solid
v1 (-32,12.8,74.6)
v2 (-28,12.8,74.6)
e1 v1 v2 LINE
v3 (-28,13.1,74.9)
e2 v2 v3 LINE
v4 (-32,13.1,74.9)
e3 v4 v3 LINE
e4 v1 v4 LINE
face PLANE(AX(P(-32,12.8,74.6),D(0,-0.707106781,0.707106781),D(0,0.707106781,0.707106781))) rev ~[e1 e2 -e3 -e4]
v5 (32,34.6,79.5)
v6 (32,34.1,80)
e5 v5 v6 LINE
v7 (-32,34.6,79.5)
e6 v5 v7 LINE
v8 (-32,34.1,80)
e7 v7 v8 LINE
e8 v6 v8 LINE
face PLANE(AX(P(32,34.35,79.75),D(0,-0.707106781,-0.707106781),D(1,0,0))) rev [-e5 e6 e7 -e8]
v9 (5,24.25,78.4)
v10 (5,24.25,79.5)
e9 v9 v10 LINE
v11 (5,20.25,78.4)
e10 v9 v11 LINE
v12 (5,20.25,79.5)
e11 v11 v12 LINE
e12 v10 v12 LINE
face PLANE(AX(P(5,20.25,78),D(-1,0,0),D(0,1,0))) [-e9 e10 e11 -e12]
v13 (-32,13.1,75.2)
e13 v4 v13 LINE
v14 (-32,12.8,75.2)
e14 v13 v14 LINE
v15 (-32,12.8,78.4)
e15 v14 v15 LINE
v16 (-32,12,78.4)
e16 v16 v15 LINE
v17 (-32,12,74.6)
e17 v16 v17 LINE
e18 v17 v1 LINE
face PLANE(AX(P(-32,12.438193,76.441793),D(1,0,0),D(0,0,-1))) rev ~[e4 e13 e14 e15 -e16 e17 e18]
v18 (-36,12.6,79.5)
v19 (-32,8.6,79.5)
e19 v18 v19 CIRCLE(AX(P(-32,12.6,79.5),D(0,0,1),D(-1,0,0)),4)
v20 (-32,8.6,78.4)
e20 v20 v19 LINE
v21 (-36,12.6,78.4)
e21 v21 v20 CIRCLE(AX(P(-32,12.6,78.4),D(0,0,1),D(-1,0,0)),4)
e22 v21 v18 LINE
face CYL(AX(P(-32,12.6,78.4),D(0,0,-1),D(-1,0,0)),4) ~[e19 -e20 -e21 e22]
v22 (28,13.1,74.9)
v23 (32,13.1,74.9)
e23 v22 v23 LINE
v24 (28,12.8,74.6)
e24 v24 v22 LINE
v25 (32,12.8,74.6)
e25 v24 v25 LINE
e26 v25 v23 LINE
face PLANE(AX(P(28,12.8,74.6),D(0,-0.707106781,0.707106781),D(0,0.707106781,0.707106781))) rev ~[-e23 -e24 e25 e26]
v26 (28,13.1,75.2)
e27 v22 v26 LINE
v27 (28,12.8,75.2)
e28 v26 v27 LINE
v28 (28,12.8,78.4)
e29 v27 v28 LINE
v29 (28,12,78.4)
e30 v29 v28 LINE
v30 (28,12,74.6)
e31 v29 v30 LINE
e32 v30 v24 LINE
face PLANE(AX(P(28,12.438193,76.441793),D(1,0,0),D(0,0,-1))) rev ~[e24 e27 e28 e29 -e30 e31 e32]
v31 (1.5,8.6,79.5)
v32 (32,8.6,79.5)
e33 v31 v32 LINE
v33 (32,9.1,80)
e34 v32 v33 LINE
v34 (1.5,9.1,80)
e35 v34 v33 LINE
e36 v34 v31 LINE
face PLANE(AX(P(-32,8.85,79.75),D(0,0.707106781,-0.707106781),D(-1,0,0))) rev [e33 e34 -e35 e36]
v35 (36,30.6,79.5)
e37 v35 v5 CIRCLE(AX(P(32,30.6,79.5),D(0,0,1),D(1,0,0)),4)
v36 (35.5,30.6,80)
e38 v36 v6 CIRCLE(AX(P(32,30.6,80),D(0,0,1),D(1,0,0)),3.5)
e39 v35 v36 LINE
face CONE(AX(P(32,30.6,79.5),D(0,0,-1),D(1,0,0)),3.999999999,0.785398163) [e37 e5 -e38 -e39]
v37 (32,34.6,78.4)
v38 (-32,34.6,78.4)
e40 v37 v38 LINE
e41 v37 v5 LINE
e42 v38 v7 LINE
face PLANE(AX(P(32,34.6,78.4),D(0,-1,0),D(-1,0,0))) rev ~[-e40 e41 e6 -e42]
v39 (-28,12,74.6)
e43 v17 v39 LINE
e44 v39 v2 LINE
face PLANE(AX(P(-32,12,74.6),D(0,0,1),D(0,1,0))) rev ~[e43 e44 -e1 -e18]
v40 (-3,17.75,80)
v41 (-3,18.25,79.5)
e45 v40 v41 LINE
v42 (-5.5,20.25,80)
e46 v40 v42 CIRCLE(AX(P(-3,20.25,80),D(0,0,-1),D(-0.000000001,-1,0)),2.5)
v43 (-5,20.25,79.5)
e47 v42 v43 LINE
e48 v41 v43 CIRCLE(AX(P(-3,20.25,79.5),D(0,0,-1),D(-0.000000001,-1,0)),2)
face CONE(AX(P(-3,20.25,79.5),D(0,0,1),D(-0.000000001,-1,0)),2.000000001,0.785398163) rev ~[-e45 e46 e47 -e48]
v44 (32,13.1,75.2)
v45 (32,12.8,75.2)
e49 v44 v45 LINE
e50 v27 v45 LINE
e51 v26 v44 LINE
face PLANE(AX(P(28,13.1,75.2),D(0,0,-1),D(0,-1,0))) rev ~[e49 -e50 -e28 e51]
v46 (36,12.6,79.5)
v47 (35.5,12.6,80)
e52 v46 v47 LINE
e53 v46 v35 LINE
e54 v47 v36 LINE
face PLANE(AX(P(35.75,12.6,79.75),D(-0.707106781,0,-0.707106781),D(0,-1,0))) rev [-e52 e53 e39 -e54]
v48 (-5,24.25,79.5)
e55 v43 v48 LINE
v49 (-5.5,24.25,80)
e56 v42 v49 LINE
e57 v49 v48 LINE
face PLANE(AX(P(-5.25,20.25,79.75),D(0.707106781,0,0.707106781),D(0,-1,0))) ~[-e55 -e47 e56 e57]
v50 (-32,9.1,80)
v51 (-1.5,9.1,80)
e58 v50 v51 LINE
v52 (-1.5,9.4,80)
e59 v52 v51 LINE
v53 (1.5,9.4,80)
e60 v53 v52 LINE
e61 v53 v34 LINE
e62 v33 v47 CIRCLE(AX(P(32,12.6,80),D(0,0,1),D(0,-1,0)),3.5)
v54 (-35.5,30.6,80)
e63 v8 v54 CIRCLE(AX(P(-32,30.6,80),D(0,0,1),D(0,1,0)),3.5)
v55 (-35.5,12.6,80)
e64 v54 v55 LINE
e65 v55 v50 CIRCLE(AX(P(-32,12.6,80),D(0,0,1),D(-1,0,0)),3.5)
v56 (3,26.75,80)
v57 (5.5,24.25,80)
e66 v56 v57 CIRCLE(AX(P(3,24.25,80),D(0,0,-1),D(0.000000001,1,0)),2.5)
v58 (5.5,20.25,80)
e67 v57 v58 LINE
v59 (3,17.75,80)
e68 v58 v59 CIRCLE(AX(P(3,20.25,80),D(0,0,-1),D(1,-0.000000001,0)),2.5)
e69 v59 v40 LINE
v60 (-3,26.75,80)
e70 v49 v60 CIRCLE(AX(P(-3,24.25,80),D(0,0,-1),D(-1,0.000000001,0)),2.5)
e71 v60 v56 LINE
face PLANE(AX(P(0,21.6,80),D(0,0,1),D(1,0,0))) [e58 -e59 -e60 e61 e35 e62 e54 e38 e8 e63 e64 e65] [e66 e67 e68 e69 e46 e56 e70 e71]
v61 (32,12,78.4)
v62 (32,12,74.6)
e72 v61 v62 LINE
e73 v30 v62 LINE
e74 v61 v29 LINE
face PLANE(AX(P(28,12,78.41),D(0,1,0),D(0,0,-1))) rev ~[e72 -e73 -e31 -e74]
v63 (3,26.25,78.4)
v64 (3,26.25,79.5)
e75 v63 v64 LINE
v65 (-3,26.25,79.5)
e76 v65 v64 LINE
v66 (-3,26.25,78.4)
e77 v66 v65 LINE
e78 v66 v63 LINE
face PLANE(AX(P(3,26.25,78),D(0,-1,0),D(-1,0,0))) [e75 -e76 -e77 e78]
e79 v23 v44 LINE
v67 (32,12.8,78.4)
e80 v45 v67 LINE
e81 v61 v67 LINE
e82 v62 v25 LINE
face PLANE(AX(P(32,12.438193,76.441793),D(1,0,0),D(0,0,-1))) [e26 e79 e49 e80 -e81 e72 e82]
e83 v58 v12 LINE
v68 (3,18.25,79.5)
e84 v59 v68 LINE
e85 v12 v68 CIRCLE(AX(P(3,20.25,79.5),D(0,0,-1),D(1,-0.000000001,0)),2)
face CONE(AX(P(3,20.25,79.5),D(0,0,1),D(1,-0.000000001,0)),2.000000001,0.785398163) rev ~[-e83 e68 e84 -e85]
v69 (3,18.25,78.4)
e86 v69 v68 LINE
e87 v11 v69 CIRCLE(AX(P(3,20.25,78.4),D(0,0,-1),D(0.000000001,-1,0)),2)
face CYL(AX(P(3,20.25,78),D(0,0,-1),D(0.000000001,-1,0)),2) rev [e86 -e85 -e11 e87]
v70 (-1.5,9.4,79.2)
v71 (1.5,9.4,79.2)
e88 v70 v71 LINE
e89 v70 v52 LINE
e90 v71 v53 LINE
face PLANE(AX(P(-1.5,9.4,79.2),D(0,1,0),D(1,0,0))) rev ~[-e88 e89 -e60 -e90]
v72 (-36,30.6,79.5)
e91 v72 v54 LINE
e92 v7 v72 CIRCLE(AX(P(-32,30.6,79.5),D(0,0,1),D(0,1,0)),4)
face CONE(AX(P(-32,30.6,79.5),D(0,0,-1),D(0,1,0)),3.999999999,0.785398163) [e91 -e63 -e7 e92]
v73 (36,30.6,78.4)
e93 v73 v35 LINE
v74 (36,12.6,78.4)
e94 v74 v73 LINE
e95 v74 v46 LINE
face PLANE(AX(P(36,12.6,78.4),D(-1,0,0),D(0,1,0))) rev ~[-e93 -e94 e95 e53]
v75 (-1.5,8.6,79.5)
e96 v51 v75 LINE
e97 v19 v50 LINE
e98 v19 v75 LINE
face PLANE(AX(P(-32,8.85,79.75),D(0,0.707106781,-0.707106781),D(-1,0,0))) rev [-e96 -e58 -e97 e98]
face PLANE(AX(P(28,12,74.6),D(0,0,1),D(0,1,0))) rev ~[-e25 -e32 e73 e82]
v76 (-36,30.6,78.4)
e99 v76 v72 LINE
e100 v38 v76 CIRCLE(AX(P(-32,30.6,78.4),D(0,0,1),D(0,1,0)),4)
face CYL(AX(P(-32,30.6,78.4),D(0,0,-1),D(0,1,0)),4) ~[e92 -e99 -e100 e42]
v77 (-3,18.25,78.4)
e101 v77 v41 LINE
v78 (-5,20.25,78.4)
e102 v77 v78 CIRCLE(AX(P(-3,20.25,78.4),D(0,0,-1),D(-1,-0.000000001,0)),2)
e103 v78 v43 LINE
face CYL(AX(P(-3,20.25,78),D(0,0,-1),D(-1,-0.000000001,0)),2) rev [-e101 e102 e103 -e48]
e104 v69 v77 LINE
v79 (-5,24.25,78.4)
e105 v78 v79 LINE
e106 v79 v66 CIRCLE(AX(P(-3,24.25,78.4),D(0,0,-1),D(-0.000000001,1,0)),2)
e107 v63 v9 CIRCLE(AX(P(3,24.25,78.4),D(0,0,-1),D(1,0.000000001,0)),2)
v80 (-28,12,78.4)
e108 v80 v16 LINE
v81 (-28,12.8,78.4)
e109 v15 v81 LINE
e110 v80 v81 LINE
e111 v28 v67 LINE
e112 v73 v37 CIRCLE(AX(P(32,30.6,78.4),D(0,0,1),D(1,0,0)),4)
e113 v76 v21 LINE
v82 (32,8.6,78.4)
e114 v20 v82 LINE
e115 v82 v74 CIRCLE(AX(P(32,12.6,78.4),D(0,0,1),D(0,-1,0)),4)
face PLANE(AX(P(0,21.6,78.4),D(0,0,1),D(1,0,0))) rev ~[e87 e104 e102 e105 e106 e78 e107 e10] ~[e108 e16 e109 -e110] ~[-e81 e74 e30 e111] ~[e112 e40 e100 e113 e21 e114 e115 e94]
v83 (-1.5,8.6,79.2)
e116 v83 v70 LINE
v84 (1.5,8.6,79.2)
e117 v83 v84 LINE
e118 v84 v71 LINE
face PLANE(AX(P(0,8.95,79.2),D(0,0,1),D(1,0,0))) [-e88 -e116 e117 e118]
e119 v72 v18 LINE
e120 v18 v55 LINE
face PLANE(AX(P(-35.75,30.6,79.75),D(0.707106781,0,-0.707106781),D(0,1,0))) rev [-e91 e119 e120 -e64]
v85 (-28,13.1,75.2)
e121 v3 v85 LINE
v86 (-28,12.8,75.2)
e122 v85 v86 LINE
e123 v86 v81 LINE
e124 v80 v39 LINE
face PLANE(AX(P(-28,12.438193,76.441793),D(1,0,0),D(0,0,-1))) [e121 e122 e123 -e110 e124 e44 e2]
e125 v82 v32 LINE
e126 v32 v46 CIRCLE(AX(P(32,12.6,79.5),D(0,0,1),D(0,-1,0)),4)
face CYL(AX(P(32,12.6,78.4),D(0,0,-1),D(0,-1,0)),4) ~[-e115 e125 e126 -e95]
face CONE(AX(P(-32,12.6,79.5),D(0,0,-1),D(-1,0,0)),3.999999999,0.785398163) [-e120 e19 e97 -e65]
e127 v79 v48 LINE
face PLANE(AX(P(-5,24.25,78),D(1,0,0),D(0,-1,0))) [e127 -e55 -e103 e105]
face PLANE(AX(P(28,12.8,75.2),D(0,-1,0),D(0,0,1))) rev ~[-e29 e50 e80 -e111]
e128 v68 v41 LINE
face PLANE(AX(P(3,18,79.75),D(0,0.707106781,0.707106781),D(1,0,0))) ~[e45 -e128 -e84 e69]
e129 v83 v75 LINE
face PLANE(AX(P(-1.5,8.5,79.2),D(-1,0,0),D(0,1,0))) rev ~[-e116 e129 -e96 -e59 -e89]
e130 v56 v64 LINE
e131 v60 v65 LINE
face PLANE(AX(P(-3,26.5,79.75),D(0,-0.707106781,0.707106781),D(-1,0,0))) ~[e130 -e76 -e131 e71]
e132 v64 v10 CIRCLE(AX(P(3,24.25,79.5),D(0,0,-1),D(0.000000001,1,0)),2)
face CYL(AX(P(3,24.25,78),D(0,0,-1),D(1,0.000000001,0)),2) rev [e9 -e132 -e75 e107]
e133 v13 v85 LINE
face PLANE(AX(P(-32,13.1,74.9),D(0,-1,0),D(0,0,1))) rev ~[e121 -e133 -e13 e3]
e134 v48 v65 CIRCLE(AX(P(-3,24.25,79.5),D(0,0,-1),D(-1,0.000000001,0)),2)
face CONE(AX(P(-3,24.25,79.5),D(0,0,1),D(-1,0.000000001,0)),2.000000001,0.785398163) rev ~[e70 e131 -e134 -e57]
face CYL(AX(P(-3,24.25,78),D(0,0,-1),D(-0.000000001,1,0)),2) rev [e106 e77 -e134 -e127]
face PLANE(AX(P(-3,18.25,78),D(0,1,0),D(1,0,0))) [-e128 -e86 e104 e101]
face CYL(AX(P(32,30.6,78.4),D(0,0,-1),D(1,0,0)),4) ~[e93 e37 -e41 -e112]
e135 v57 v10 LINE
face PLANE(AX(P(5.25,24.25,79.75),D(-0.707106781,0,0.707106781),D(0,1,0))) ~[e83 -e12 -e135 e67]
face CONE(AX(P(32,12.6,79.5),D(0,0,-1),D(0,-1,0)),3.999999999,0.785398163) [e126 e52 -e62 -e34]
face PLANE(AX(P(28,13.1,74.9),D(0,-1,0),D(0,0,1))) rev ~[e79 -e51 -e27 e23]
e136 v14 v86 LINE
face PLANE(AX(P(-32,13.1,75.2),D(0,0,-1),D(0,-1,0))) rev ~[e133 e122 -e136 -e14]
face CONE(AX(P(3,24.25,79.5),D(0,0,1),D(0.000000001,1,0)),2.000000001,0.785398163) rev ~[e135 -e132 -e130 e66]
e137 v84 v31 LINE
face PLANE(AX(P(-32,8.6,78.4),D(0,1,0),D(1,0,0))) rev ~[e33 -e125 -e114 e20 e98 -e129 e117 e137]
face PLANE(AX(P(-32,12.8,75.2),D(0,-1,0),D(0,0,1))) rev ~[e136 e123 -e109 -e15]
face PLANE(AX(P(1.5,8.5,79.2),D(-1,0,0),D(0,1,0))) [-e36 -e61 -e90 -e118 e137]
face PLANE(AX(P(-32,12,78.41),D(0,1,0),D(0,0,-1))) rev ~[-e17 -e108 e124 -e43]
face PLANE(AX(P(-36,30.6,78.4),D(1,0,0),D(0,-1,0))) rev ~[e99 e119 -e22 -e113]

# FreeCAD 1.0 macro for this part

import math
import FreeCAD as App
import Part
import Sketcher
from FreeCAD import Vector
Q = App.Units.Quantity


def edges_at(feature, points):
    """Names of the edges that pass closest to the given points."""
    edges = feature.Shape.Edges
    near = lambda p: min(range(len(edges)), key=lambda i: edges[i].distToShape(Part.Vertex(*p))[0])
    return sorted({f"Edge{near(p) + 1}" for p in points})


def add_polygon(sketch, points):
    """Adds a closed chain of lines whose ends are joined by coincident constraints."""
    first, n = sketch.GeometryCount, len(points)
    for a, b in zip(points, points[1:] + points[:1]):
        sketch.addGeometry(Part.LineSegment(App.Vector(*a, 0), App.Vector(*b, 0)), False)
    for i in range(n):
        sketch.addConstraint(Sketcher.Constraint("Coincident", first + i, 2, first + (i + 1) % n, 1))

doc = App.newDocument("Part")
params = doc.addObject("Spreadsheet::Sheet", "Params")
for row, (alias, value) in enumerate([
    ("sketch1_radius", "4 mm"),
    ("sketch1_width", "64 mm"),
    ("sketch1_height", "18 mm"),
    ("pad1_length", "1.6 mm"),
    ("chamfer_size", "0.5 mm"),
    ("sketch2_radius", "2 mm"),
    ("sketch2_width", "6 mm"),
    ("sketch2_height", "4 mm"),
    ("pad2_length", "3 mm"),
    ("chamfer2_size", "0.5 mm"),
    ("sketch3_width", "3 mm"),
    ("sketch3_height", "0.9 mm"),
    ("pad3_length", "0.9 mm"),
    ("sketch4_width", "0.8 mm"),
    ("sketch4_width2", "0.3 mm"),
    ("sketch4_height", "3.81 mm"),
    ("pad4_length", "4 mm"),
    ("sketch5_width", "0.8 mm"),
    ("sketch5_width2", "0.3 mm"),
    ("sketch5_height", "3.81 mm"),
    ("pad5_length", "4 mm"),
], start=1):
    params.set(f"A{row}", alias)
    params.set(f"B{row}", "=" + value)
    params.setAlias(f"B{row}", alias)

body = doc.addObject("PartDesign::Body", "Body")

sketch1 = body.newObject("Sketcher::SketchObject", "Sketch")
sketch1.AttachmentSupport = (doc.getObject("XY_Plane"), [""])
sketch1.MapMode = "FlatFace"
sketch1.AttachmentOffset = App.Placement(Vector(0, 0, 78.4), App.Rotation())
sketch1.addGeometry([
    Part.LineSegment(Vector(-32, 8.6, 0), Vector(32, 8.6, 0)),
    Part.ArcOfCircle(Part.Circle(Vector(32, 12.6, 0), Vector(0, 0, 1), 4), math.radians(-90), math.radians(0)),
    Part.LineSegment(Vector(36, 12.6, 0), Vector(36, 30.6, 0)),
    Part.ArcOfCircle(Part.Circle(Vector(32, 30.6, 0), Vector(0, 0, 1), 4), math.radians(0), math.radians(90)),
    Part.LineSegment(Vector(32, 34.6, 0), Vector(-32, 34.6, 0)),
    Part.ArcOfCircle(Part.Circle(Vector(-32, 30.6, 0), Vector(0, 0, 1), 4), math.radians(90), math.radians(180)),
    Part.LineSegment(Vector(-36, 30.6, 0), Vector(-36, 12.6, 0)),
    Part.ArcOfCircle(Part.Circle(Vector(-32, 12.6, 0), Vector(0, 0, 1), 4), math.radians(180), math.radians(270)),
], False)
sketch1.addConstraint([
    Sketcher.Constraint("Tangent", 0, 2, 1, 1),
    Sketcher.Constraint("Tangent", 1, 2, 2, 1),
    Sketcher.Constraint("Tangent", 2, 2, 3, 1),
    Sketcher.Constraint("Tangent", 3, 2, 4, 1),
    Sketcher.Constraint("Tangent", 4, 2, 5, 1),
    Sketcher.Constraint("Tangent", 5, 2, 6, 1),
    Sketcher.Constraint("Tangent", 6, 2, 7, 1),
    Sketcher.Constraint("Tangent", 7, 2, 0, 1),
    Sketcher.Constraint("Horizontal", 0),
    Sketcher.Constraint("Vertical", 2),
    Sketcher.Constraint("Horizontal", 4),
    Sketcher.Constraint("Vertical", 6),
    Sketcher.Constraint("Equal", 1, 3),
    Sketcher.Constraint("Equal", 3, 5),
    Sketcher.Constraint("Equal", 5, 7),
    Sketcher.Constraint("Radius", 1, 4.0),
    Sketcher.Constraint("DistanceX", 0, 1, 0, 2, 64.0),
    Sketcher.Constraint("DistanceY", 2, 1, 2, 2, 18.0),
    Sketcher.Constraint("DistanceX", -1, 1, 1, 3, 32.0),
    Sketcher.Constraint("DistanceY", -1, 1, 1, 3, 12.6),
])
sketch1.setExpression("Constraints[15]", "Params.sketch1_radius")
sketch1.setExpression("Constraints[16]", "Params.sketch1_width")
sketch1.setExpression("Constraints[17]", "Params.sketch1_height")
pad1 = body.newObject("PartDesign::Pad", "Pad")
pad1.Profile = sketch1
pad1.setExpression("Length", "Params.pad1_length")
doc.recompute()

chamfer = body.newObject("PartDesign::Chamfer", "Chamfer")
chamfer.Base = (pad1, edges_at(pad1, [
    (34.828, 9.772, 80),
    (36, 21.6, 80),
    (34.828, 33.428, 80),
    (0, 34.6, 80),
    (-34.828, 33.428, 80),
    (-36, 21.6, 80),
    (-34.828, 9.772, 80),
    (0, 8.6, 80),
]))
chamfer.setExpression("Size", "Params.chamfer_size")
body2 = doc.addObject("PartDesign::Body", "Body001")

sketch2 = body2.newObject("Sketcher::SketchObject", "Sketch001")
sketch2.AttachmentSupport = (doc.getObject("XY_Plane001"), [""])
sketch2.MapMode = "FlatFace"
sketch2.AttachmentOffset = App.Placement(Vector(0, 0, 78), App.Rotation())
sketch2.addGeometry([
    Part.LineSegment(Vector(-3, 18.2, 0), Vector(3, 18.2, 0)),
    Part.ArcOfCircle(Part.Circle(Vector(3, 20.3, 0), Vector(0, 0, 1), 2), math.radians(-90), math.radians(0)),
    Part.LineSegment(Vector(5, 20.2, 0), Vector(5, 24.2, 0)),
    Part.ArcOfCircle(Part.Circle(Vector(3, 24.2, 0), Vector(0, 0, 1), 2), math.radians(0), math.radians(90)),
    Part.LineSegment(Vector(3, 26.2, 0), Vector(-3, 26.2, 0)),
    Part.ArcOfCircle(Part.Circle(Vector(-3, 24.2, 0), Vector(0, 0, 1), 2), math.radians(90), math.radians(180)),
    Part.LineSegment(Vector(-5, 24.2, 0), Vector(-5, 20.2, 0)),
    Part.ArcOfCircle(Part.Circle(Vector(-3, 20.3, 0), Vector(0, 0, 1), 2), math.radians(-180), math.radians(-90)),
], False)
sketch2.addConstraint([
    Sketcher.Constraint("Tangent", 0, 2, 1, 1),
    Sketcher.Constraint("Tangent", 1, 2, 2, 1),
    Sketcher.Constraint("Tangent", 2, 2, 3, 1),
    Sketcher.Constraint("Tangent", 3, 2, 4, 1),
    Sketcher.Constraint("Tangent", 4, 2, 5, 1),
    Sketcher.Constraint("Tangent", 5, 2, 6, 1),
    Sketcher.Constraint("Tangent", 6, 2, 7, 1),
    Sketcher.Constraint("Tangent", 7, 2, 0, 1),
    Sketcher.Constraint("Horizontal", 0),
    Sketcher.Constraint("Vertical", 2),
    Sketcher.Constraint("Horizontal", 4),
    Sketcher.Constraint("Vertical", 6),
    Sketcher.Constraint("Equal", 1, 3),
    Sketcher.Constraint("Equal", 3, 5),
    Sketcher.Constraint("Equal", 5, 7),
    Sketcher.Constraint("Radius", 1, 2.0),
    Sketcher.Constraint("DistanceX", 0, 1, 0, 2, 6.0),
    Sketcher.Constraint("DistanceY", 2, 1, 2, 2, 4.0),
    Sketcher.Constraint("DistanceX", -1, 1, 1, 3, 3.0),
    Sketcher.Constraint("DistanceY", -1, 1, 1, 3, 20.25),
])
sketch2.setExpression("Constraints[15]", "Params.sketch2_radius")
sketch2.setExpression("Constraints[16]", "Params.sketch2_width")
sketch2.setExpression("Constraints[17]", "Params.sketch2_height")
pad2 = body2.newObject("PartDesign::Pad", "Pad001")
pad2.Profile = sketch2
pad2.setExpression("Length", "Params.pad2_length")
doc.recompute()

boolean = body.newObject("PartDesign::Boolean", "Boolean")
boolean.Type = "Cut"
boolean.addObjects([body2])
doc.recompute()

chamfer2 = body.newObject("PartDesign::Chamfer", "Chamfer001")
chamfer2.Base = (boolean, edges_at(boolean, [
    (-4.414, 18.836, 80),
    (0, 18.25, 80),
    (4.414, 18.836, 80),
    (5, 22.25, 80),
    (4.414, 25.664, 80),
    (0, 26.25, 80),
    (-4.414, 25.664, 80),
    (-5, 22.25, 80),
]))
chamfer2.setExpression("Size", "Params.chamfer2_size")
body3 = doc.addObject("PartDesign::Body", "Body002")

sketch3 = body3.newObject("Sketcher::SketchObject", "Sketch002")
sketch3.AttachmentSupport = (doc.getObject("XY_Plane002"), [""])
sketch3.MapMode = "FlatFace"
sketch3.AttachmentOffset = App.Placement(Vector(0, 0, 79.2), App.Rotation())
add_polygon(sketch3, [(-1.5, 9.4), (-1.5, 8.5), (1.5, 8.5), (1.5, 9.4)])
sketch3.addConstraint([
    Sketcher.Constraint("Vertical", 0),
    Sketcher.Constraint("Horizontal", 1),
    Sketcher.Constraint("Vertical", 2),
    Sketcher.Constraint("Horizontal", 3),
    Sketcher.Constraint("DistanceX", 1, 1, 1, 2, 3.0),
    Sketcher.Constraint("DistanceY", 0, 2, 0, 1, 0.9),
    Sketcher.Constraint("DistanceX", 0, 2, -1, 1, 1.5),
    Sketcher.Constraint("DistanceY", -1, 1, 0, 2, 8.5),
])
sketch3.setExpression("Constraints[8]", "Params.sketch3_width")
sketch3.setExpression("Constraints[9]", "Params.sketch3_height")
pad3 = body3.newObject("PartDesign::Pad", "Pad002")
pad3.Profile = sketch3
pad3.setExpression("Length", "Params.pad3_length")
doc.recompute()

boolean2 = body.newObject("PartDesign::Boolean", "Boolean001")
boolean2.Type = "Cut"
boolean2.addObjects([body3])

sketch4 = body.newObject("Sketcher::SketchObject", "Sketch003")
sketch4.AttachmentSupport = (doc.getObject("YZ_Plane"), [""])
sketch4.MapMode = "FlatFace"
sketch4.AttachmentOffset = App.Placement(Vector(0, 0, -32), App.Rotation())
add_polygon(sketch4, [(12, 78.41), (12, 74.6), (12.8, 74.6), (13.1, 74.9), (13.1, 75.2), (12.8, 75.2), (12.8, 78.41)])
sketch4.addConstraint([
    Sketcher.Constraint("Vertical", 0),
    Sketcher.Constraint("Horizontal", 1),
    Sketcher.Constraint("Vertical", 3),
    Sketcher.Constraint("Horizontal", 4),
    Sketcher.Constraint("Vertical", 5),
    Sketcher.Constraint("Horizontal", 6),
    Sketcher.Constraint("Vertical", 1, 2, 4, 2),
    Sketcher.Constraint("Equal", 4, 3),
    Sketcher.Constraint("Angle", 2, Q("45 deg")),
    Sketcher.Constraint("DistanceX", 1, 1, 1, 2, 0.8),
    Sketcher.Constraint("DistanceX", 4, 2, 4, 1, 0.3),
    Sketcher.Constraint("DistanceX", -1, 1, 0, 2, 12.0),
    Sketcher.Constraint("DistanceY", 0, 2, 0, 1, 3.81),
    Sketcher.Constraint("DistanceY", -1, 1, 0, 2, 74.6),
])
sketch4.setExpression("Constraints[16]", "Params.sketch4_width")
sketch4.setExpression("Constraints[17]", "Params.sketch4_width2")
sketch4.setExpression("Constraints[19]", "Params.sketch4_height")
pad4 = body.newObject("PartDesign::Pad", "Pad003")
pad4.Profile = sketch4
pad4.setExpression("Length", "Params.pad4_length")

sketch5 = body.newObject("Sketcher::SketchObject", "Sketch004")
sketch5.AttachmentSupport = (doc.getObject("YZ_Plane"), [""])
sketch5.MapMode = "FlatFace"
sketch5.AttachmentOffset = App.Placement(Vector(0, 0, 28), App.Rotation())
add_polygon(sketch5, [(12, 78.41), (12, 74.6), (12.8, 74.6), (13.1, 74.9), (13.1, 75.2), (12.8, 75.2), (12.8, 78.41)])
sketch5.addConstraint([
    Sketcher.Constraint("Vertical", 0),
    Sketcher.Constraint("Horizontal", 1),
    Sketcher.Constraint("Vertical", 3),
    Sketcher.Constraint("Horizontal", 4),
    Sketcher.Constraint("Vertical", 5),
    Sketcher.Constraint("Horizontal", 6),
    Sketcher.Constraint("Vertical", 1, 2, 4, 2),
    Sketcher.Constraint("Equal", 4, 3),
    Sketcher.Constraint("Angle", 2, Q("45 deg")),
    Sketcher.Constraint("DistanceX", 1, 1, 1, 2, 0.8),
    Sketcher.Constraint("DistanceX", 4, 2, 4, 1, 0.3),
    Sketcher.Constraint("DistanceX", -1, 1, 0, 2, 12.0),
    Sketcher.Constraint("DistanceY", 0, 2, 0, 1, 3.81),
    Sketcher.Constraint("DistanceY", -1, 1, 0, 2, 74.6),
])
sketch5.setExpression("Constraints[16]", "Params.sketch5_width")
sketch5.setExpression("Constraints[17]", "Params.sketch5_width2")
sketch5.setExpression("Constraints[19]", "Params.sketch5_height")
pad5 = body.newObject("PartDesign::Pad", "Pad004")
pad5.Profile = sketch5
pad5.setExpression("Length", "Params.pad5_length")

doc.recompute()
